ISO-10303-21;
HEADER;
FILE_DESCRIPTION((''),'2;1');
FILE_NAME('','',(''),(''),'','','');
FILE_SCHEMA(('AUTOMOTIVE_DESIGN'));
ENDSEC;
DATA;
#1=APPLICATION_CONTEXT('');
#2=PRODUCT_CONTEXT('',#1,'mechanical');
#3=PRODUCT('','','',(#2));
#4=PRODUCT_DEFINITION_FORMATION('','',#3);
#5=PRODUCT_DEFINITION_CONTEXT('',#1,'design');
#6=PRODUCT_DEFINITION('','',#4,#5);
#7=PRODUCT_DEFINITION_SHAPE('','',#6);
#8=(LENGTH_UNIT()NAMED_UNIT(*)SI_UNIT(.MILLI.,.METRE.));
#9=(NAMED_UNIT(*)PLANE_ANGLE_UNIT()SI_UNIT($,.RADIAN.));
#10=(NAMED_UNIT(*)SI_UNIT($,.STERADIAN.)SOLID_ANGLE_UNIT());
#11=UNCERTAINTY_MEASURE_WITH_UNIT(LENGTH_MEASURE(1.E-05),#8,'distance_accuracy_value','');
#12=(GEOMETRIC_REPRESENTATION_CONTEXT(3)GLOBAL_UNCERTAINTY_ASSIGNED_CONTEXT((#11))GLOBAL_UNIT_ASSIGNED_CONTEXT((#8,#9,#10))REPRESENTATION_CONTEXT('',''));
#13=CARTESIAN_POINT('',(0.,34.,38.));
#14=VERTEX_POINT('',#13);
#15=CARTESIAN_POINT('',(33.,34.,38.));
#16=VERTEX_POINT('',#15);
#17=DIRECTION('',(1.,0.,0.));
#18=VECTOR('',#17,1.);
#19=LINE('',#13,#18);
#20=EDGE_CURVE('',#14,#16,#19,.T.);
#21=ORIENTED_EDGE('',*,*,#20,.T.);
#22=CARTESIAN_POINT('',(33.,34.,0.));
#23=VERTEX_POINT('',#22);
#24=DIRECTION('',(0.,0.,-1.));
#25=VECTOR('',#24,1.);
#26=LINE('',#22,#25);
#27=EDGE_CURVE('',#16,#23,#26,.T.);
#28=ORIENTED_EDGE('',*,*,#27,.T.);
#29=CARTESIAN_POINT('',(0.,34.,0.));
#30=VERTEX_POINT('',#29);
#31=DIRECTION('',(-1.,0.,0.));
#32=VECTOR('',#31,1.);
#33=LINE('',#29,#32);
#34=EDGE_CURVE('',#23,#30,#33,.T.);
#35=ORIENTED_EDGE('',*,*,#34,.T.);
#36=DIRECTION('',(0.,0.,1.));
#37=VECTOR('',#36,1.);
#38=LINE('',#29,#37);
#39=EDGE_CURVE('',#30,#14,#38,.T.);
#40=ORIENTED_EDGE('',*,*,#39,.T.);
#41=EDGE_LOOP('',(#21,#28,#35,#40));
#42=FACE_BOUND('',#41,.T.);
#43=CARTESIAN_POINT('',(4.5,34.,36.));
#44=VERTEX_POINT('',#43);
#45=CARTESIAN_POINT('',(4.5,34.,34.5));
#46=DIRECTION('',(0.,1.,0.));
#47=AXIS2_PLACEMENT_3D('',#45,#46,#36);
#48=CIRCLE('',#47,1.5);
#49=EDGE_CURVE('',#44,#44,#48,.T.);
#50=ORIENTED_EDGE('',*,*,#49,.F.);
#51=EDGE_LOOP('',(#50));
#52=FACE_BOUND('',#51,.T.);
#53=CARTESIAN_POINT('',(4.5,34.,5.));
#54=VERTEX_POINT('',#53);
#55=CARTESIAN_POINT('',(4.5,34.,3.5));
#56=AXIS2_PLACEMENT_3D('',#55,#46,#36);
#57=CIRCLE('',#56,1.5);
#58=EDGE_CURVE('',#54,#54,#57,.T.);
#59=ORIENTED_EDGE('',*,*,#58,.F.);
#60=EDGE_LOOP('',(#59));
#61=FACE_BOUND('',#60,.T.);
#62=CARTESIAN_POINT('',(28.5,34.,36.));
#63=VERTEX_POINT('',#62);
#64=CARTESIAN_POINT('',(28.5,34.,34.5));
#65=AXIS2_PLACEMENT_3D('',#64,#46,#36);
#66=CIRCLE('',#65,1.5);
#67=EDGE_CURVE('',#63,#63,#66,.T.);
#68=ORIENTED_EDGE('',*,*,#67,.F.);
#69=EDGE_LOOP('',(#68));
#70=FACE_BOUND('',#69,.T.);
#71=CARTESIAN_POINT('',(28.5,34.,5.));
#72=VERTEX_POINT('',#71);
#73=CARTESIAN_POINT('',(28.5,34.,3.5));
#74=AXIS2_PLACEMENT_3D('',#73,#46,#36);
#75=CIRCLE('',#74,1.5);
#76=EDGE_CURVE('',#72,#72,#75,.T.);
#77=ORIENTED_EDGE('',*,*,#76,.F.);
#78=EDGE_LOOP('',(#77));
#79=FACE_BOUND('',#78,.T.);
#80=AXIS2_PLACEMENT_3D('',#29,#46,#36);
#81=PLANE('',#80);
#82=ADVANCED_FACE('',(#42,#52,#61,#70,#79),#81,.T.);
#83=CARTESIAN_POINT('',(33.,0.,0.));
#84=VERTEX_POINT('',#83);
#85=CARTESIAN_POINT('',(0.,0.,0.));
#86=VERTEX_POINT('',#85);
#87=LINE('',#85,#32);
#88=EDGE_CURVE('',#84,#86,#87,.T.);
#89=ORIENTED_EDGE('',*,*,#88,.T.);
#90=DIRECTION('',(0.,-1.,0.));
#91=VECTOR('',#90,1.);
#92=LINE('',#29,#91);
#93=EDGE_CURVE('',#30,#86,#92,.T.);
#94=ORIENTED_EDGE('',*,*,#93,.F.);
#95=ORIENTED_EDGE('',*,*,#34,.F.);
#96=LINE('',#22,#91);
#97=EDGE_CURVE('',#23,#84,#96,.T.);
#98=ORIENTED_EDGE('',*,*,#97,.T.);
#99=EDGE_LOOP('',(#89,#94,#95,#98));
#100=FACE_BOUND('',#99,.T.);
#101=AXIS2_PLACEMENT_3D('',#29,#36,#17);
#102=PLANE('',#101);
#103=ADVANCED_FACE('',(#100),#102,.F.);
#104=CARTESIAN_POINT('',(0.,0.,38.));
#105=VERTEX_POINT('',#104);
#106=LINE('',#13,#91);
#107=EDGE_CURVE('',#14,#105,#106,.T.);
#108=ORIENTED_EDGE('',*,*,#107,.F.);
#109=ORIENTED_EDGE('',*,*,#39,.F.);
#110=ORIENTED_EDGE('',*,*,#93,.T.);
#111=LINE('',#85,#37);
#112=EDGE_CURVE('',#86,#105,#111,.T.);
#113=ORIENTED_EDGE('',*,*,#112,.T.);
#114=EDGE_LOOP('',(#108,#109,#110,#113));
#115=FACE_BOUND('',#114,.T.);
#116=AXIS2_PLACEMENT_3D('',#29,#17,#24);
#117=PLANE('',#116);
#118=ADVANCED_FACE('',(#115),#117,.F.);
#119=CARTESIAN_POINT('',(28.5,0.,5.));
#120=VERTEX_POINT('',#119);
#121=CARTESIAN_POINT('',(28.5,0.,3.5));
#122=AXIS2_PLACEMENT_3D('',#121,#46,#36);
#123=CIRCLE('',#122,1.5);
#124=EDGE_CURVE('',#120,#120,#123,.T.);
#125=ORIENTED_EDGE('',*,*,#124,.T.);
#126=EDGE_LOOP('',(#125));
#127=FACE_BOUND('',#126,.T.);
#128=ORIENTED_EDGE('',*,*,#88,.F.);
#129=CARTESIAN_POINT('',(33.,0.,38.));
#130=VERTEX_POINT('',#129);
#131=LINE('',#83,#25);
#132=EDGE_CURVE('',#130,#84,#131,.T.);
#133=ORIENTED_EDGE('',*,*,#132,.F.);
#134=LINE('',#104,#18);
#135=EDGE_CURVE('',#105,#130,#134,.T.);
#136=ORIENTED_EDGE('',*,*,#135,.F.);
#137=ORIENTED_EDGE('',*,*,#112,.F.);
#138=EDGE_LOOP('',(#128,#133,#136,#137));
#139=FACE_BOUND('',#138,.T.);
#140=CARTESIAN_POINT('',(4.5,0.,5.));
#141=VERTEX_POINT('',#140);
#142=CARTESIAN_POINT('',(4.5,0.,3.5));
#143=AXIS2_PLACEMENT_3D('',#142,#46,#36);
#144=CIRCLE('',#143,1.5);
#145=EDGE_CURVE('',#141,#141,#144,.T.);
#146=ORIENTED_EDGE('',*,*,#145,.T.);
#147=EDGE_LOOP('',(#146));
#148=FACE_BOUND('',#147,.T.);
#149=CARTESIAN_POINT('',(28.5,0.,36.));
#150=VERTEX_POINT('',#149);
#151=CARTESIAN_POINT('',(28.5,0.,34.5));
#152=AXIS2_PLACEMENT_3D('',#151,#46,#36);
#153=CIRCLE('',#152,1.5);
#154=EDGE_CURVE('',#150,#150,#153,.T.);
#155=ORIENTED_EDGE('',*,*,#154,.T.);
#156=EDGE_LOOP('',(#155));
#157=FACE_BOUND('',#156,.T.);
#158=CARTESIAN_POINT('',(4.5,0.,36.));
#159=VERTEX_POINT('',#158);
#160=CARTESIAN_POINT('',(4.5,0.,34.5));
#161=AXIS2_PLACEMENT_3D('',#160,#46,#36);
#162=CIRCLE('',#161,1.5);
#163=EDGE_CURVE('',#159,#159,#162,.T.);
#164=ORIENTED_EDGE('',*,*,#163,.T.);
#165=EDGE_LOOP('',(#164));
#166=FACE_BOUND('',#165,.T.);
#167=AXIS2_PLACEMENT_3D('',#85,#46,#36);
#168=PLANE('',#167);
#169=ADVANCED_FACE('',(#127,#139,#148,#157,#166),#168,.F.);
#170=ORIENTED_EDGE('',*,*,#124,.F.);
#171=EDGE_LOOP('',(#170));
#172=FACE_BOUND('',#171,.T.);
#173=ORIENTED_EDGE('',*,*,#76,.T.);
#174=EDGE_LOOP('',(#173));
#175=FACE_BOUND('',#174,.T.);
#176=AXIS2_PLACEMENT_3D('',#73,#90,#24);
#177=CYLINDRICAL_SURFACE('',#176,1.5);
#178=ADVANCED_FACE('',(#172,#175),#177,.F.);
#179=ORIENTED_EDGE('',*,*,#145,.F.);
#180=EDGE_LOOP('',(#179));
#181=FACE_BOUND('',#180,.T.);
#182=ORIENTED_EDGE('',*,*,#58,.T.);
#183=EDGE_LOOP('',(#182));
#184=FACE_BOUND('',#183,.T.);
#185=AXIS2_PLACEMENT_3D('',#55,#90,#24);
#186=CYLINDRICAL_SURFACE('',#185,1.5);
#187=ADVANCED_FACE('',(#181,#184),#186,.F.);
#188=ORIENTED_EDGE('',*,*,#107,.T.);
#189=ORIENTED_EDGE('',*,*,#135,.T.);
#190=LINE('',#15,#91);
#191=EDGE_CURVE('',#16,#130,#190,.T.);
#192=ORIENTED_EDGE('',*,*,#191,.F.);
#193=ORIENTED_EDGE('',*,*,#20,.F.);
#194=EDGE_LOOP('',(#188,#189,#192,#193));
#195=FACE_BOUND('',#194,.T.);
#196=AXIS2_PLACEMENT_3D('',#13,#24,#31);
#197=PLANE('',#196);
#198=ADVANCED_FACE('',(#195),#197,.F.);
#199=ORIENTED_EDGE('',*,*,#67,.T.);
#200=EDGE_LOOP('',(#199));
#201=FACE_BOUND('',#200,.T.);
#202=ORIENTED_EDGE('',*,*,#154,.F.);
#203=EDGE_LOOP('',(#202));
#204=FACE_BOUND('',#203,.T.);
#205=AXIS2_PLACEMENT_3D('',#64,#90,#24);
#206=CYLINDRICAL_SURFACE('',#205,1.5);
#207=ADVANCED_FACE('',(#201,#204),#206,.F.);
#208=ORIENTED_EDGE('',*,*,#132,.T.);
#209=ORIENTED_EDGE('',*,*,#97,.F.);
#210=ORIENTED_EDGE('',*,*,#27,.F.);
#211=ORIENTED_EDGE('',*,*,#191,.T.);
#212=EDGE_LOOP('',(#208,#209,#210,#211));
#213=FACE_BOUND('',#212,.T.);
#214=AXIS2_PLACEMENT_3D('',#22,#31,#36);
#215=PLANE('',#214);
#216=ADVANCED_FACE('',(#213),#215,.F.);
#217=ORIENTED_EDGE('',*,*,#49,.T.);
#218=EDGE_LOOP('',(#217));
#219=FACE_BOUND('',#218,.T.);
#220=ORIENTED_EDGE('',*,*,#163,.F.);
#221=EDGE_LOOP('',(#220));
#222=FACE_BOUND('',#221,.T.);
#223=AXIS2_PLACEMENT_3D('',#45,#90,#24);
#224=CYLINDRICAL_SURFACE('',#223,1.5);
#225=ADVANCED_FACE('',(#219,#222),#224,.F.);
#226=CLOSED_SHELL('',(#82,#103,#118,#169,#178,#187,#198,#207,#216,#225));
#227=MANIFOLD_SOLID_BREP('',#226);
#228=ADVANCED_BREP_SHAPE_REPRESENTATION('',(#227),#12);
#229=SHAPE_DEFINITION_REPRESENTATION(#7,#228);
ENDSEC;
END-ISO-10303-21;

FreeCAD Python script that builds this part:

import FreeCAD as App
import Part
import Sketcher

doc = App.newDocument("Part")
body = doc.addObject("PartDesign::Body", "Body")

sketch1 = body.newObject("Sketcher::SketchObject", "Sketch")
sketch1.AttachmentSupport = (doc.getObject("XZ_Plane"), [""])
sketch1.MapMode = "FlatFace"
sketch1.addGeometry([
    Part.LineSegment(App.Vector(0, 0, 0), App.Vector(0, 38, 0)),
    Part.LineSegment(App.Vector(0, 38, 0), App.Vector(33, 38, 0)),
    Part.LineSegment(App.Vector(33, 38, 0), App.Vector(33, 0, 0)),
    Part.LineSegment(App.Vector(33, 0, 0), App.Vector(0, 0, 0)),
    Part.Circle(App.Vector(4.5, 34.5, 0), App.Vector(0, 0, 1), 1.5),
    Part.Circle(App.Vector(28.5, 34.5, 0), App.Vector(0, 0, 1), 1.5),
    Part.Circle(App.Vector(4.5, 3.5, 0), App.Vector(0, 0, 1), 1.5),
    Part.Circle(App.Vector(28.5, 3.5, 0), App.Vector(0, 0, 1), 1.5),
], False)
sketch1.addConstraint([
    Sketcher.Constraint("Coincident", 0, 2, 1, 1),
    Sketcher.Constraint("Coincident", 1, 2, 2, 1),
    Sketcher.Constraint("Coincident", 2, 2, 3, 1),
    Sketcher.Constraint("Coincident", 3, 2, 0, 1),
    Sketcher.Constraint("Vertical", 0),
    Sketcher.Constraint("Horizontal", 1),
    Sketcher.Constraint("Vertical", 2),
    Sketcher.Constraint("Horizontal", 3),
    Sketcher.Constraint("Coincident", 3, 2, -1, 1),
    Sketcher.Constraint("Equal", 4, 5),
    Sketcher.Constraint("Equal", 5, 6),
    Sketcher.Constraint("Equal", 6, 7),
    Sketcher.Constraint("Horizontal", 4, 3, 5, 3),
    Sketcher.Constraint("Horizontal", 6, 3, 7, 3),
    Sketcher.Constraint("Vertical", 4, 3, 6, 3),
    Sketcher.Constraint("Vertical", 5, 3, 7, 3),
    Sketcher.Constraint("Diameter", 4, 3.0),
    Sketcher.Constraint("DistanceX", 1, 1, 1, 2, 33.0),
    Sketcher.Constraint("DistanceY", 0, 1, 0, 2, 38.0),
    Sketcher.Constraint("DistanceX", 4, 3, 5, 3, 24.0),
    Sketcher.Constraint("DistanceY", 6, 3, 4, 3, 31.0),
    Sketcher.Constraint("DistanceX", -1, 1, 4, 3, 4.5),
    Sketcher.Constraint("DistanceY", -1, 1, 4, 3, 34.5),
])
pad1 = body.newObject("PartDesign::Pad", "Pad")
pad1.Profile = sketch1
pad1.Length = 34
pad1.Reversed = True

doc.recompute()
